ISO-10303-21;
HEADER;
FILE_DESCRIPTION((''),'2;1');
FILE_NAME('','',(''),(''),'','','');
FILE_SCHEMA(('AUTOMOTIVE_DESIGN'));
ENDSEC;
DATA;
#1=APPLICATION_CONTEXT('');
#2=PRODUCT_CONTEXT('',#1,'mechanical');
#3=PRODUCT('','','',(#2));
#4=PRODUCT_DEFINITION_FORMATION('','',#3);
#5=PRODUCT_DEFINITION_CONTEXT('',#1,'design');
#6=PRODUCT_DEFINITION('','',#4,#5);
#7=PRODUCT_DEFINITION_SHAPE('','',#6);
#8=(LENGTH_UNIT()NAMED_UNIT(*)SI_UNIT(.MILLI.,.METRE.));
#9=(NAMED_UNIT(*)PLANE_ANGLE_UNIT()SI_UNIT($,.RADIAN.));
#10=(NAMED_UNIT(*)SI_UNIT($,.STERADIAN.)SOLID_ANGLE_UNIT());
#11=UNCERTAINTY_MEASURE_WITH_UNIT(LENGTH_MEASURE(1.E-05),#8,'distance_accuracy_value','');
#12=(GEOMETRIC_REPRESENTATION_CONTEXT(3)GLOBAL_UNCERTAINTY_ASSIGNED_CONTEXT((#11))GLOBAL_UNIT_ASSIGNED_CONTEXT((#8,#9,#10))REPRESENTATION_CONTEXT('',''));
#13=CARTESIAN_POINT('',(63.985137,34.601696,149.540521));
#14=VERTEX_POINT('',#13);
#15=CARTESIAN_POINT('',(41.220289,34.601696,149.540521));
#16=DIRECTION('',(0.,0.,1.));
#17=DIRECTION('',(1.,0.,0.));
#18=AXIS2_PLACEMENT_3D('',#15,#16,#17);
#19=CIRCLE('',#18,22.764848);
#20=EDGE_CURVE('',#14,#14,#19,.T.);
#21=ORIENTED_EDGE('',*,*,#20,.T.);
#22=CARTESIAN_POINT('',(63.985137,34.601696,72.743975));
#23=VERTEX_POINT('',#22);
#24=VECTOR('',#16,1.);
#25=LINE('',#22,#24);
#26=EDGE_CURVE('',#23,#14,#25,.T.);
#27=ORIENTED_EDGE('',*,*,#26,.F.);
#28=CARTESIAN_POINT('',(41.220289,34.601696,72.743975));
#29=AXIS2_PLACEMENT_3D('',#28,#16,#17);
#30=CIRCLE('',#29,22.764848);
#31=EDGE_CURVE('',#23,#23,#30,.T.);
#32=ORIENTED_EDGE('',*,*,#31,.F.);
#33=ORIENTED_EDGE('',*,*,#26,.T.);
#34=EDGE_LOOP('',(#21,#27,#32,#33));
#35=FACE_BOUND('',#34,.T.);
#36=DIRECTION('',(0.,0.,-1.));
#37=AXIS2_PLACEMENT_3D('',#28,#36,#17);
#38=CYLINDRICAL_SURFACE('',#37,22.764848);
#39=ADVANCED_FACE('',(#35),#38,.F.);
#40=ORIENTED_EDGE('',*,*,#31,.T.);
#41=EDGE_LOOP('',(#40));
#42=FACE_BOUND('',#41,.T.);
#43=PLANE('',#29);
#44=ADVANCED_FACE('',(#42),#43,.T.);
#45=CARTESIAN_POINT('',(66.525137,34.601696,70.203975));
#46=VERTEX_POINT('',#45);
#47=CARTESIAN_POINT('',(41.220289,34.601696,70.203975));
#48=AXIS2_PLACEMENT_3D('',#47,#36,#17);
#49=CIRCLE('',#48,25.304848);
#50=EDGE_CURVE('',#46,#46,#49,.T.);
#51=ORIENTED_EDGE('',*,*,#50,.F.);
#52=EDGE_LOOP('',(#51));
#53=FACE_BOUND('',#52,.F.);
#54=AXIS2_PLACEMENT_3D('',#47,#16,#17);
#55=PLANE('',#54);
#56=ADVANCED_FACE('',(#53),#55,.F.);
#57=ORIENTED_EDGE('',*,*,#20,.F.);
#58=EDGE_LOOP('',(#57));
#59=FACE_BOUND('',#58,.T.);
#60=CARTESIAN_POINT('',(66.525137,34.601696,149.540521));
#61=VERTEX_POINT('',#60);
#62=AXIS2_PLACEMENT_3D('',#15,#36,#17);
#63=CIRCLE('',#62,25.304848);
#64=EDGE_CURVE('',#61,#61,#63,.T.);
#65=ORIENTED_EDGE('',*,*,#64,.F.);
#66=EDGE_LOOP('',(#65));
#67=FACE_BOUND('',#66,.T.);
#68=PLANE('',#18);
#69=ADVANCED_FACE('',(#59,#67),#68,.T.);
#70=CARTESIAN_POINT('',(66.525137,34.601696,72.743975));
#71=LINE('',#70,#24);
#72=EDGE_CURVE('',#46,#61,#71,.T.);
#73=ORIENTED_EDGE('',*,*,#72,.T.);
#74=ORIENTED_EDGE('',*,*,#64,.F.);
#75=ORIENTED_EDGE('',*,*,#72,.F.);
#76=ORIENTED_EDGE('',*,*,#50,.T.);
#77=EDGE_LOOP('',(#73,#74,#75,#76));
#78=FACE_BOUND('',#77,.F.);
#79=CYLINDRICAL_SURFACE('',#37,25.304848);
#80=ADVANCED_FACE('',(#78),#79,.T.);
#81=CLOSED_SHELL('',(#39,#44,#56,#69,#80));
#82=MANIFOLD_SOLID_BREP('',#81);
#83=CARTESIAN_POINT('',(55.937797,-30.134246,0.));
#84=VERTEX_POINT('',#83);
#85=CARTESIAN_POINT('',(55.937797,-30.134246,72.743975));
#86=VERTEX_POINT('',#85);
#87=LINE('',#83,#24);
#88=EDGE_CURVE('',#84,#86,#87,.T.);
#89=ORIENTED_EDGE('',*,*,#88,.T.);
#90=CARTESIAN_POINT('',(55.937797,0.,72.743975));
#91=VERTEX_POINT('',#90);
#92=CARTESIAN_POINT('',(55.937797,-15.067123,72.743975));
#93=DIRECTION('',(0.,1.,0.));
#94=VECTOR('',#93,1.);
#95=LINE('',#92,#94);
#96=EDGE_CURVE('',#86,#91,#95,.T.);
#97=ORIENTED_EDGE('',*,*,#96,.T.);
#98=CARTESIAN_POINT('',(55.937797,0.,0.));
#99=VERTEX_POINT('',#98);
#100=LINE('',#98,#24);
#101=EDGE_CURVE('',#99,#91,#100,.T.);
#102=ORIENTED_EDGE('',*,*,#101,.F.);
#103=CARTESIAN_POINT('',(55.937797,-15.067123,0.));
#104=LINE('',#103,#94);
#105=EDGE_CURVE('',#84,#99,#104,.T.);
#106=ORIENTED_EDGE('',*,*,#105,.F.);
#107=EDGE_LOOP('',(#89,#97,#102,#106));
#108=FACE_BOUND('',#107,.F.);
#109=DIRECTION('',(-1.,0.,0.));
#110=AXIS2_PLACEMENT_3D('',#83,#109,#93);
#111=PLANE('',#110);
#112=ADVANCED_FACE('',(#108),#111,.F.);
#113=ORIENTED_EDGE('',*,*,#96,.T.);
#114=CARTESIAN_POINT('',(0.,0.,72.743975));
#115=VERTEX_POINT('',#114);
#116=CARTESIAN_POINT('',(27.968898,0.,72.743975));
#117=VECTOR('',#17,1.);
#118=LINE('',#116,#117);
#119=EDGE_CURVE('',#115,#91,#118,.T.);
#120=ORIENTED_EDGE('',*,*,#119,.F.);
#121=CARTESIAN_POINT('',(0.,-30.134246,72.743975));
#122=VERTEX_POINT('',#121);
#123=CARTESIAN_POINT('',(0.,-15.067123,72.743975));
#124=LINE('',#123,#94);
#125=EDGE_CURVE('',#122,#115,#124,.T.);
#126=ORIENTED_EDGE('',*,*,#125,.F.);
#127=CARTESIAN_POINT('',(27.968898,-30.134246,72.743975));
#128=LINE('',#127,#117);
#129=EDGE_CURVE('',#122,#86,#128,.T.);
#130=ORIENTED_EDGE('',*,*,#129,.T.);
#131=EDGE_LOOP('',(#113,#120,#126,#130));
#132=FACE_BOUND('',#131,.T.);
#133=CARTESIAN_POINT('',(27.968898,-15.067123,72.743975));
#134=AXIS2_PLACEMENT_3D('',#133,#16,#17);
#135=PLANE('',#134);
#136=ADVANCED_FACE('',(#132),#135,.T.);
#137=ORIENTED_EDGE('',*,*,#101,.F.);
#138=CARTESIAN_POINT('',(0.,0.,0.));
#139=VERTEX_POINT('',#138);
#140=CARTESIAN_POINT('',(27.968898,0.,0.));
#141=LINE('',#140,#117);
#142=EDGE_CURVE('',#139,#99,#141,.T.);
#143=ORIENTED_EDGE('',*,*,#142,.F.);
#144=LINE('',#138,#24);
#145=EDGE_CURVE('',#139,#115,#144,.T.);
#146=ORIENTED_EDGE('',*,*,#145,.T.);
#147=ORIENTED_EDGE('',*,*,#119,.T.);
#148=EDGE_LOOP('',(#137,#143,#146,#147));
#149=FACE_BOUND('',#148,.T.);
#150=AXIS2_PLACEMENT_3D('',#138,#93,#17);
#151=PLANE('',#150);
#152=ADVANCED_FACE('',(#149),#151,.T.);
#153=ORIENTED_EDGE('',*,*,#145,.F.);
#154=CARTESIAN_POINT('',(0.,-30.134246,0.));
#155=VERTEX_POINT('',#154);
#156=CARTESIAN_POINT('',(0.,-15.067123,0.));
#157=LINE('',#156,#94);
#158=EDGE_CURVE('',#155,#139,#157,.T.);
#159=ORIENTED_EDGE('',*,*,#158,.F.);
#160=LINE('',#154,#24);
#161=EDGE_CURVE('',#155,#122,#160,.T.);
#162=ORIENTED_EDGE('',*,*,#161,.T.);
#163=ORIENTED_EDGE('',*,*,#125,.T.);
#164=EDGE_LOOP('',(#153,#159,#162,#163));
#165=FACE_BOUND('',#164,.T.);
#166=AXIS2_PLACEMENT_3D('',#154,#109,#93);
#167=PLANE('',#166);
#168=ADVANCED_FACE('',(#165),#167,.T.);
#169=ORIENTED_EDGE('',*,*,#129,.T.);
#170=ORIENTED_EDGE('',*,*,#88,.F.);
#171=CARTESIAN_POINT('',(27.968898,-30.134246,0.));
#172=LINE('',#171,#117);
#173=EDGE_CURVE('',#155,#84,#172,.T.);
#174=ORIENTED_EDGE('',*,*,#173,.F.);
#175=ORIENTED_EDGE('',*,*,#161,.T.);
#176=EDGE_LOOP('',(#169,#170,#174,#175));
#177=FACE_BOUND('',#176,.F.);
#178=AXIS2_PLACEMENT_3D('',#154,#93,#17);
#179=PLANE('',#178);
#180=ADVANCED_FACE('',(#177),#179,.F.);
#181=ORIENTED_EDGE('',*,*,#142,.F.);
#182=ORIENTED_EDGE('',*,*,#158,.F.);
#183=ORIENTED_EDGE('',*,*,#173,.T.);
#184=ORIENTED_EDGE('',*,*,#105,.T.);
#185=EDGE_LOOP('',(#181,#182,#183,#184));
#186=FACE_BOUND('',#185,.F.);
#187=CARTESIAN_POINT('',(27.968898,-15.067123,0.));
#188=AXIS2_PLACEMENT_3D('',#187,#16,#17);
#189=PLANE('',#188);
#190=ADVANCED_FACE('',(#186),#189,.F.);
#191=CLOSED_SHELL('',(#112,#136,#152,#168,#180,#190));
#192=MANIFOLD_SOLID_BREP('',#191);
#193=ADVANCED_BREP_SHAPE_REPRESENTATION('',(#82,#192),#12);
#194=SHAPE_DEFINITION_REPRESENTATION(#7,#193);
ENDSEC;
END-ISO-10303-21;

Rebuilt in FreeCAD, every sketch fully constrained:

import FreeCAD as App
import Part
import Sketcher
from FreeCAD import Vector
Q = App.Units.Quantity


def faces_at(feature, points):
    """Names of the faces that lie closest to the given points."""
    faces = feature.Shape.Faces
    near = lambda p: min(range(len(faces)), key=lambda i: faces[i].distToShape(Part.Vertex(*p))[0])
    return sorted({f"Face{near(p) + 1}" for p in points})


def add_polygon(sketch, points):
    """Adds a closed chain of lines whose ends are joined by coincident constraints."""
    first, n = sketch.GeometryCount, len(points)
    for a, b in zip(points, points[1:] + points[:1]):
        sketch.addGeometry(Part.LineSegment(App.Vector(*a, 0), App.Vector(*b, 0)), False)
    for i in range(n):
        sketch.addConstraint(Sketcher.Constraint("Coincident", first + i, 2, first + (i + 1) % n, 1))

doc = App.newDocument("Part")
body = doc.addObject("PartDesign::Body", "Body")

# Sketch on XY plane
sketch1 = body.newObject("Sketcher::SketchObject", "Sketch")
sketch1.AttachmentSupport = (doc.getObject("XY_Plane"), [""])
sketch1.MapMode = "FlatFace"
add_polygon(sketch1, [(0, 0), (0, -30.134246), (55.937797, -30.134246), (55.937797, 0)])  # lines 0-3
sketch1.addConstraint([
    Sketcher.Constraint("Vertical", 0),
    Sketcher.Constraint("Horizontal", 1),
    Sketcher.Constraint("Vertical", 2),
    Sketcher.Constraint("Horizontal", 3),
    Sketcher.Constraint("Coincident", 3, 2, -1, 1),
    Sketcher.Constraint("DistanceX", 1, 1, 1, 2, 55.937797),
    Sketcher.Constraint("DistanceY", 0, 2, 0, 1, 30.134246),
])
pad1 = body.newObject("PartDesign::Pad", "Pad")
pad1.Profile = sketch1
pad1.Length = 72.743975
body2 = doc.addObject("PartDesign::Body", "Body001")

# Sketch on XY plane
sketch2 = body2.newObject("Sketcher::SketchObject", "Sketch001")
sketch2.AttachmentSupport = (doc.getObject("XY_Plane001"), [""])
sketch2.MapMode = "FlatFace"
sketch2.AttachmentOffset = App.Placement(Vector(0, 0, 72.743975), App.Rotation())
sketch2.addGeometry(Part.Circle(Vector(41.220289, 34.601696, 0), Vector(0, 0, 1), 22.764848), False)
sketch2.addConstraint([
    Sketcher.Constraint("Diameter", 0, 45.529696),
    Sketcher.Constraint("DistanceX", -1, 1, 0, 3, 41.220289),
    Sketcher.Constraint("DistanceY", -1, 1, 0, 3, 34.601696),
])
pad2 = body2.newObject("PartDesign::Pad", "Pad001")
pad2.Profile = sketch2
pad2.Length = 76.796547
doc.recompute()

thickness = body2.newObject("PartDesign::Thickness", "Thickness")
thickness.Base = (pad2, faces_at(pad2, [(41.22, 34.602, 149.541)]))
thickness.Value = Q("0.1 in")
thickness.Reversed = False
thickness.Join = "Intersection"

doc.recompute()
